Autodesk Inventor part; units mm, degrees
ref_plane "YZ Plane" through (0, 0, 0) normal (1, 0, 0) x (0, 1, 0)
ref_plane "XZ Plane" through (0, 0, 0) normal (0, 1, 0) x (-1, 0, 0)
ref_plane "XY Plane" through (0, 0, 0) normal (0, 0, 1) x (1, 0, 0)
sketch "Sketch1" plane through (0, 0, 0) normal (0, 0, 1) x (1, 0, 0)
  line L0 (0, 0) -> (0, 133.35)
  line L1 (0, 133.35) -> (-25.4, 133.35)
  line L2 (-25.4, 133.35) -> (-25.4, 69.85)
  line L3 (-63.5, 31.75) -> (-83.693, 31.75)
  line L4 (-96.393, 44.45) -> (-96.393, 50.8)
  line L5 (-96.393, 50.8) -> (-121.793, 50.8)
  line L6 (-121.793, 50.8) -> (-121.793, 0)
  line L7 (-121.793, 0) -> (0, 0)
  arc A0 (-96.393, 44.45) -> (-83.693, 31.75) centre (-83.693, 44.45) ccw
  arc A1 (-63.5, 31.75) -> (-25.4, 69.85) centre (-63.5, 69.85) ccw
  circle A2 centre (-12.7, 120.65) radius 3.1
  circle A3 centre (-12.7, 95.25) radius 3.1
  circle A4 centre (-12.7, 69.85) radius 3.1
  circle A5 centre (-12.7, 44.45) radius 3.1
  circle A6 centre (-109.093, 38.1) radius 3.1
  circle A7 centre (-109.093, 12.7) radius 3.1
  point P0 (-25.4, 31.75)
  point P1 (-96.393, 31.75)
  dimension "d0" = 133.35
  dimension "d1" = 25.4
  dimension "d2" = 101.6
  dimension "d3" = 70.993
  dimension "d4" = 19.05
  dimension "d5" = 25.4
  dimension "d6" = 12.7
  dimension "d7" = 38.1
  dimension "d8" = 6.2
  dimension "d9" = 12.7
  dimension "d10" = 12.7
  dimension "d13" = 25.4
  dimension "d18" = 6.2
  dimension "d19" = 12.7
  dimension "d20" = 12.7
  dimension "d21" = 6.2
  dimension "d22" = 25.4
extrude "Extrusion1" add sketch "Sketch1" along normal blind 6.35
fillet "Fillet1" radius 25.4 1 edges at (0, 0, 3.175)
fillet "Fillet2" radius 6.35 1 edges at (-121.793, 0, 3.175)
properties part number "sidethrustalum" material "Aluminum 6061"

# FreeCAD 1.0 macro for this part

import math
import FreeCAD as App
import Part
import Sketcher

V = App.Vector
Q = App.Units.Quantity


def edges_at(feature, points):
    """Names of the edges that pass closest to the given points."""
    edges = feature.Shape.Edges
    near = lambda p: min(range(len(edges)), key=lambda i: edges[i].distToShape(Part.Vertex(*p))[0])
    return sorted({f"Edge{near(p) + 1}" for p in points})

doc = App.newDocument("Part")
body = doc.addObject("PartDesign::Body", "Body")

# Sketch on XY plane
sketch1 = body.newObject("Sketcher::SketchObject", "Sketch")
sketch1.AttachmentSupport = (doc.getObject("XY_Plane"), [""])
sketch1.MapMode = "FlatFace"
sketch1.addGeometry([
    Part.LineSegment(V(-121.793, 0, 0), V(0, 0, 0)),  # 0
    Part.LineSegment(V(0, 0, 0), V(0, 133.35, 0)),  # 1
    Part.LineSegment(V(0, 133.35, 0), V(-25.4, 133.35, 0)),  # 2
    Part.LineSegment(V(-25.4, 133.35, 0), V(-25.4, 69.85, 0)),  # 3
    Part.ArcOfCircle(Part.Circle(V(-63.5, 69.85, 0), V(0, 0, 1), 38.1), math.radians(-90), math.radians(0)),  # 4
    Part.LineSegment(V(-63.5, 31.75, 0), V(-83.693, 31.75, 0)),  # 5
    Part.ArcOfCircle(Part.Circle(V(-83.693, 44.45, 0), V(0, 0, 1), 12.7), math.radians(180), math.radians(270)),  # 6
    Part.LineSegment(V(-96.393, 44.45, 0), V(-96.393, 50.8, 0)),  # 7
    Part.LineSegment(V(-96.393, 50.8, 0), V(-121.793, 50.8, 0)),  # 8
    Part.LineSegment(V(-121.793, 50.8, 0), V(-121.793, 0, 0)),  # 9
    Part.Circle(V(-109.093, 12.7, 0), V(0, 0, 1), 3.1),  # 10
    Part.Circle(V(-109.093, 38.1, 0), V(0, 0, 1), 3.1),  # 11
    Part.Circle(V(-12.7, 44.45, 0), V(0, 0, 1), 3.1),  # 12
    Part.Circle(V(-12.7, 69.85, 0), V(0, 0, 1), 3.1),  # 13
    Part.Circle(V(-12.7, 95.25, 0), V(0, 0, 1), 3.1),  # 14
    Part.Circle(V(-12.7, 120.65, 0), V(0, 0, 1), 3.1),  # 15
], False)
sketch1.addConstraint([
    Sketcher.Constraint("Coincident", 0, 2, 1, 1),
    Sketcher.Constraint("Coincident", 1, 2, 2, 1),
    Sketcher.Constraint("Coincident", 2, 2, 3, 1),
    Sketcher.Constraint("Tangent", 3, 2, 4, 2),
    Sketcher.Constraint("Tangent", 4, 1, 5, 1),
    Sketcher.Constraint("Tangent", 5, 2, 6, 2),
    Sketcher.Constraint("Tangent", 6, 1, 7, 1),
    Sketcher.Constraint("Coincident", 7, 2, 8, 1),
    Sketcher.Constraint("Coincident", 8, 2, 9, 1),
    Sketcher.Constraint("Coincident", 9, 2, 0, 1),
    Sketcher.Constraint("Horizontal", 0),
    Sketcher.Constraint("Vertical", 1),
    Sketcher.Constraint("Horizontal", 2),
    Sketcher.Constraint("Vertical", 3),
    Sketcher.Constraint("Horizontal", 5),
    Sketcher.Constraint("Vertical", 7),
    Sketcher.Constraint("Horizontal", 8),
    Sketcher.Constraint("Vertical", 9),
    Sketcher.Constraint("Coincident", 0, 2, -1, 1),
    Sketcher.Constraint("Equal", 10, 11),
    Sketcher.Constraint("Equal", 11, 12),
    Sketcher.Constraint("Equal", 12, 13),
    Sketcher.Constraint("Equal", 13, 14),
    Sketcher.Constraint("Equal", 14, 15),
    Sketcher.Constraint("Horizontal", 6, 3, 12, 3),
    Sketcher.Constraint("Horizontal", 4, 3, 13, 3),
    Sketcher.Constraint("Vertical", 10, 3, 11, 3),
    Sketcher.Constraint("Vertical", 12, 3, 13, 3),
    Sketcher.Constraint("Vertical", 13, 3, 14, 3),
    Sketcher.Constraint("Vertical", 14, 3, 15, 3),
    Sketcher.Constraint("Equal", 2, 8),
    Sketcher.Constraint("Radius", 4, Q("1.5 in")),
    Sketcher.Constraint("Radius", 6, Q("0.5 in")),
    Sketcher.Constraint("DistanceX", 2, 2, 2, 1, Q("1 in")),
    Sketcher.Constraint("DistanceX", 10, 3, 6, 3, Q("1 in")),
    Sketcher.Constraint("DistanceY", 10, 3, 11, 3, Q("1 in")),
    Sketcher.Constraint("DistanceY", 13, 3, 14, 3, Q("1 in")),
    Sketcher.Constraint("DistanceY", 14, 3, 15, 3, Q("1 in")),
    Sketcher.Constraint("Diameter", 10, Q("0.2441 in")),
    Sketcher.Constraint("DistanceY", 1, 1, 1, 2, Q("5.25 in")),
    Sketcher.Constraint("DistanceY", -1, 1, 10, 3, Q("0.5 in")),
    Sketcher.Constraint("DistanceX", 12, 3, -1, 1, Q("0.5 in")),
    Sketcher.Constraint("DistanceY", 15, 3, 1, 2, Q("0.5 in")),
    Sketcher.Constraint("DistanceY", 11, 3, 7, 2, Q("0.5 in")),
    Sketcher.Constraint("DistanceX", 6, 3, 12, 3, Q("2.795 in")),
])
pad1 = body.newObject("PartDesign::Pad", "Pad")
pad1.Profile = sketch1
pad1.Length = Q("0.25 in")
doc.recompute()

fillet = body.newObject("PartDesign::Fillet", "Fillet")
fillet.Base = (pad1, edges_at(pad1, [(0, 0, 3.175)]))
fillet.Radius = Q("1 in")
doc.recompute()

fillet2 = body.newObject("PartDesign::Fillet", "Fillet001")
fillet2.Base = (fillet, edges_at(fillet, [(-121.793, 0, 3.175)]))
fillet2.Radius = Q("0.25 in")

doc.recompute()
